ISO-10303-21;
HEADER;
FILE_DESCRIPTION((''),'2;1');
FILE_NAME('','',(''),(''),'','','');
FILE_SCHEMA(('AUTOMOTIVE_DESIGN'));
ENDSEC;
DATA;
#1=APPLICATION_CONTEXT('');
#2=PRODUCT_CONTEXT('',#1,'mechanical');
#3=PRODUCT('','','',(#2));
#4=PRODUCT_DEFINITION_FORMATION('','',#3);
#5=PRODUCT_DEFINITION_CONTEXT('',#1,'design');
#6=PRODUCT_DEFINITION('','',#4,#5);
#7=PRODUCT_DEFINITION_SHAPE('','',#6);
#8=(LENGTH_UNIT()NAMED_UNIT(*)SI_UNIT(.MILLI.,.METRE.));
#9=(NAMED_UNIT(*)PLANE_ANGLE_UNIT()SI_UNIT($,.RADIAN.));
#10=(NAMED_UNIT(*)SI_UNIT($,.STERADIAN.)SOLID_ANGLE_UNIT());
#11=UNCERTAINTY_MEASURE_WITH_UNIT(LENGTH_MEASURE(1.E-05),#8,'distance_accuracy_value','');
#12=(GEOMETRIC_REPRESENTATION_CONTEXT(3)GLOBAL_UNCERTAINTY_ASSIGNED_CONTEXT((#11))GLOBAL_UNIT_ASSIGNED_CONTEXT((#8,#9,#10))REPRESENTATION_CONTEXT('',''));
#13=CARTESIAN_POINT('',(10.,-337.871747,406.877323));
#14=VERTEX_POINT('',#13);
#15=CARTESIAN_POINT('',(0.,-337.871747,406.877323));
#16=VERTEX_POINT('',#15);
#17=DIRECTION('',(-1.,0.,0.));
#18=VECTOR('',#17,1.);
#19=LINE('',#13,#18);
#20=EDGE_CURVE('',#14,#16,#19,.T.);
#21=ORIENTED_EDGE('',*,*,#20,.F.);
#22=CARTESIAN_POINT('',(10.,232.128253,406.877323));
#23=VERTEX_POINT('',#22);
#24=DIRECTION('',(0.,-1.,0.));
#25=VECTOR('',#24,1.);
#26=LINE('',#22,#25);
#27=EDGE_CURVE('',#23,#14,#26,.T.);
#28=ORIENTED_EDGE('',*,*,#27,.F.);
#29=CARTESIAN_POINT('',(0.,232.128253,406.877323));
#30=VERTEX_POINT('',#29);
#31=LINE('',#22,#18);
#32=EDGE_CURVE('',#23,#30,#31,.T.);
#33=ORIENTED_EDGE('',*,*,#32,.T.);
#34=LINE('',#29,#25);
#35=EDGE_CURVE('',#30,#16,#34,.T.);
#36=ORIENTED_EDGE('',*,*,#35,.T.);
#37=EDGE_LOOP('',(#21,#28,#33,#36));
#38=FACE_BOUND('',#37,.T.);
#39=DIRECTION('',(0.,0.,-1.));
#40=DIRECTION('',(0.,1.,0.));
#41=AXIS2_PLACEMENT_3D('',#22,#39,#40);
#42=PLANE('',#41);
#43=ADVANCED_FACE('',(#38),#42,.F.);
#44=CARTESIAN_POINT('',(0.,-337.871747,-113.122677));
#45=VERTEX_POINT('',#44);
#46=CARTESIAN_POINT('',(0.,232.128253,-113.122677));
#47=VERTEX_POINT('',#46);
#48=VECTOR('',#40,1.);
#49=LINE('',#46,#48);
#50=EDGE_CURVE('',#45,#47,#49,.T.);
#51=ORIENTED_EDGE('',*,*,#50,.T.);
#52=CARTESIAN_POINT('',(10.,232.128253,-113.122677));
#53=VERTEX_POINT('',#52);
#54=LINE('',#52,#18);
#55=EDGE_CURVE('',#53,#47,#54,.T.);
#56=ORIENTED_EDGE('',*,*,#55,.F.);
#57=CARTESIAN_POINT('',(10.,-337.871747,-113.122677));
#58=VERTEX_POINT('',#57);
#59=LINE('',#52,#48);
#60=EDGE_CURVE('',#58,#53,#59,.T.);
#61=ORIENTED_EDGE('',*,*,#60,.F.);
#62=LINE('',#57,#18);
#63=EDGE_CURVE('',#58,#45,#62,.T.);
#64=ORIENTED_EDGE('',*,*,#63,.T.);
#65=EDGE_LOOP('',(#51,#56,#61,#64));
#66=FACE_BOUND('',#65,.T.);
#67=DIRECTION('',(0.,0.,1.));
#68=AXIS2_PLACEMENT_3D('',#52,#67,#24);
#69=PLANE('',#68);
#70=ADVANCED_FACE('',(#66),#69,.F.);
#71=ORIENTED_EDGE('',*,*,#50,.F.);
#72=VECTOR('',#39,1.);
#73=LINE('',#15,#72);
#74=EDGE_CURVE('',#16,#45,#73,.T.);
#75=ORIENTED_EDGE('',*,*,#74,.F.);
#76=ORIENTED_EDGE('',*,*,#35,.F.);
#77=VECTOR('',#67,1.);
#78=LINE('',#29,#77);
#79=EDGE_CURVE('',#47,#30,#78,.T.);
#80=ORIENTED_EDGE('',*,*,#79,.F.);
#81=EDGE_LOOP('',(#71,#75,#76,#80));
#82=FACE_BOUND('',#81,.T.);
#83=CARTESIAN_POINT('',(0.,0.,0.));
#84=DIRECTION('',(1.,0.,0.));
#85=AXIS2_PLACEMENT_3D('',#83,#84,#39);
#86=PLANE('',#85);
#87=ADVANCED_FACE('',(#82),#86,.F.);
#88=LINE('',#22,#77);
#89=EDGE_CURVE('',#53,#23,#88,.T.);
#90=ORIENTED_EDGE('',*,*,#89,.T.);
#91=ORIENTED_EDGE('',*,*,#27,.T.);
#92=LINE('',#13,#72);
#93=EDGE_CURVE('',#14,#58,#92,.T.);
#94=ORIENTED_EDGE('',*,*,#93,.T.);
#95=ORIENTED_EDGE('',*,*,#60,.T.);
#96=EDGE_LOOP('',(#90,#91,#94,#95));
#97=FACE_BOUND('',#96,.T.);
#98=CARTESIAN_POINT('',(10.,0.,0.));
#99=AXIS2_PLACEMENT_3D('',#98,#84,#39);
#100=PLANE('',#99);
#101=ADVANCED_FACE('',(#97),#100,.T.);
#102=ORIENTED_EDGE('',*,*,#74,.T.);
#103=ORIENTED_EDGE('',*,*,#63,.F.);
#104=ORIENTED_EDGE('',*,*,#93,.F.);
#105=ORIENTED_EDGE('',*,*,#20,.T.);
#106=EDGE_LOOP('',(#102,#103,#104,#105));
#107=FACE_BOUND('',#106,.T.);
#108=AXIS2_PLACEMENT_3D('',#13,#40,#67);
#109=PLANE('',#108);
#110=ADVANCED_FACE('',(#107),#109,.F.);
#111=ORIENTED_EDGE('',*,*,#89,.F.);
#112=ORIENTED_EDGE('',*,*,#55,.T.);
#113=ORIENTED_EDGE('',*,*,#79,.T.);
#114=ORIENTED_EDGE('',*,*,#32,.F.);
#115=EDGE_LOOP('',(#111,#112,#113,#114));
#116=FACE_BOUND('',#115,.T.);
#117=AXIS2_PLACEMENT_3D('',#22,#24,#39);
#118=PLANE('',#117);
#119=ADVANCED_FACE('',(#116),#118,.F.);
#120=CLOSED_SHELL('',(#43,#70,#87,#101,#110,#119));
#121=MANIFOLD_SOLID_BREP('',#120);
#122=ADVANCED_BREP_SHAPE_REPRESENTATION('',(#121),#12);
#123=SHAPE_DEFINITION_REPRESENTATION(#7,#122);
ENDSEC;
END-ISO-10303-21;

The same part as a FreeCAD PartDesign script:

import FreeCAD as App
import Part
import Sketcher

V = App.Vector
Q = App.Units.Quantity

doc = App.newDocument("Part")
body = doc.addObject("PartDesign::Body", "Body")

# Sketch on YZ plane
sketch1 = body.newObject("Sketcher::SketchObject", "Sketch")
sketch1.AttachmentSupport = (doc.getObject("YZ_Plane"), [""])
sketch1.MapMode = "FlatFace"
sketch1.addGeometry(Part.LineSegment(V(232, 407, 0), V(-338, 407, 0)), False)
sketch1.addGeometry(Part.LineSegment(V(-338, 407, 0), V(-338, -113, 0)), False)
sketch1.addGeometry(Part.LineSegment(V(-338, -113, 0), V(232, -113, 0)), False)
sketch1.addGeometry(Part.LineSegment(V(232, -113, 0), V(232, 407, 0)), False)
sketch1.addConstraint(Sketcher.Constraint("Coincident", 0, 2, 1, 1))
sketch1.addConstraint(Sketcher.Constraint("Coincident", 1, 2, 2, 1))
sketch1.addConstraint(Sketcher.Constraint("Coincident", 2, 2, 3, 1))
sketch1.addConstraint(Sketcher.Constraint("Coincident", 3, 2, 0, 1))
sketch1.addConstraint(Sketcher.Constraint("Horizontal", 0))
sketch1.addConstraint(Sketcher.Constraint("Vertical", 1))
sketch1.addConstraint(Sketcher.Constraint("Horizontal", 2))
sketch1.addConstraint(Sketcher.Constraint("Vertical", 3))
sketch1.addConstraint(Sketcher.Constraint("DistanceX", 0, 2, 0, 1, Q("570 mm")))
sketch1.addConstraint(Sketcher.Constraint("DistanceY", 1, 2, 1, 1, Q("520 mm")))
sketch1.addConstraint(Sketcher.Constraint("DistanceX", 0, 2, -1, 1, Q("337.871747 mm")))
sketch1.addConstraint(Sketcher.Constraint("DistanceY", -1, 1, 0, 2, Q("406.877323 mm")))
pad1 = body.newObject("PartDesign::Pad", "Pad")
pad1.Profile = sketch1
pad1.Length = 10

doc.recompute()
